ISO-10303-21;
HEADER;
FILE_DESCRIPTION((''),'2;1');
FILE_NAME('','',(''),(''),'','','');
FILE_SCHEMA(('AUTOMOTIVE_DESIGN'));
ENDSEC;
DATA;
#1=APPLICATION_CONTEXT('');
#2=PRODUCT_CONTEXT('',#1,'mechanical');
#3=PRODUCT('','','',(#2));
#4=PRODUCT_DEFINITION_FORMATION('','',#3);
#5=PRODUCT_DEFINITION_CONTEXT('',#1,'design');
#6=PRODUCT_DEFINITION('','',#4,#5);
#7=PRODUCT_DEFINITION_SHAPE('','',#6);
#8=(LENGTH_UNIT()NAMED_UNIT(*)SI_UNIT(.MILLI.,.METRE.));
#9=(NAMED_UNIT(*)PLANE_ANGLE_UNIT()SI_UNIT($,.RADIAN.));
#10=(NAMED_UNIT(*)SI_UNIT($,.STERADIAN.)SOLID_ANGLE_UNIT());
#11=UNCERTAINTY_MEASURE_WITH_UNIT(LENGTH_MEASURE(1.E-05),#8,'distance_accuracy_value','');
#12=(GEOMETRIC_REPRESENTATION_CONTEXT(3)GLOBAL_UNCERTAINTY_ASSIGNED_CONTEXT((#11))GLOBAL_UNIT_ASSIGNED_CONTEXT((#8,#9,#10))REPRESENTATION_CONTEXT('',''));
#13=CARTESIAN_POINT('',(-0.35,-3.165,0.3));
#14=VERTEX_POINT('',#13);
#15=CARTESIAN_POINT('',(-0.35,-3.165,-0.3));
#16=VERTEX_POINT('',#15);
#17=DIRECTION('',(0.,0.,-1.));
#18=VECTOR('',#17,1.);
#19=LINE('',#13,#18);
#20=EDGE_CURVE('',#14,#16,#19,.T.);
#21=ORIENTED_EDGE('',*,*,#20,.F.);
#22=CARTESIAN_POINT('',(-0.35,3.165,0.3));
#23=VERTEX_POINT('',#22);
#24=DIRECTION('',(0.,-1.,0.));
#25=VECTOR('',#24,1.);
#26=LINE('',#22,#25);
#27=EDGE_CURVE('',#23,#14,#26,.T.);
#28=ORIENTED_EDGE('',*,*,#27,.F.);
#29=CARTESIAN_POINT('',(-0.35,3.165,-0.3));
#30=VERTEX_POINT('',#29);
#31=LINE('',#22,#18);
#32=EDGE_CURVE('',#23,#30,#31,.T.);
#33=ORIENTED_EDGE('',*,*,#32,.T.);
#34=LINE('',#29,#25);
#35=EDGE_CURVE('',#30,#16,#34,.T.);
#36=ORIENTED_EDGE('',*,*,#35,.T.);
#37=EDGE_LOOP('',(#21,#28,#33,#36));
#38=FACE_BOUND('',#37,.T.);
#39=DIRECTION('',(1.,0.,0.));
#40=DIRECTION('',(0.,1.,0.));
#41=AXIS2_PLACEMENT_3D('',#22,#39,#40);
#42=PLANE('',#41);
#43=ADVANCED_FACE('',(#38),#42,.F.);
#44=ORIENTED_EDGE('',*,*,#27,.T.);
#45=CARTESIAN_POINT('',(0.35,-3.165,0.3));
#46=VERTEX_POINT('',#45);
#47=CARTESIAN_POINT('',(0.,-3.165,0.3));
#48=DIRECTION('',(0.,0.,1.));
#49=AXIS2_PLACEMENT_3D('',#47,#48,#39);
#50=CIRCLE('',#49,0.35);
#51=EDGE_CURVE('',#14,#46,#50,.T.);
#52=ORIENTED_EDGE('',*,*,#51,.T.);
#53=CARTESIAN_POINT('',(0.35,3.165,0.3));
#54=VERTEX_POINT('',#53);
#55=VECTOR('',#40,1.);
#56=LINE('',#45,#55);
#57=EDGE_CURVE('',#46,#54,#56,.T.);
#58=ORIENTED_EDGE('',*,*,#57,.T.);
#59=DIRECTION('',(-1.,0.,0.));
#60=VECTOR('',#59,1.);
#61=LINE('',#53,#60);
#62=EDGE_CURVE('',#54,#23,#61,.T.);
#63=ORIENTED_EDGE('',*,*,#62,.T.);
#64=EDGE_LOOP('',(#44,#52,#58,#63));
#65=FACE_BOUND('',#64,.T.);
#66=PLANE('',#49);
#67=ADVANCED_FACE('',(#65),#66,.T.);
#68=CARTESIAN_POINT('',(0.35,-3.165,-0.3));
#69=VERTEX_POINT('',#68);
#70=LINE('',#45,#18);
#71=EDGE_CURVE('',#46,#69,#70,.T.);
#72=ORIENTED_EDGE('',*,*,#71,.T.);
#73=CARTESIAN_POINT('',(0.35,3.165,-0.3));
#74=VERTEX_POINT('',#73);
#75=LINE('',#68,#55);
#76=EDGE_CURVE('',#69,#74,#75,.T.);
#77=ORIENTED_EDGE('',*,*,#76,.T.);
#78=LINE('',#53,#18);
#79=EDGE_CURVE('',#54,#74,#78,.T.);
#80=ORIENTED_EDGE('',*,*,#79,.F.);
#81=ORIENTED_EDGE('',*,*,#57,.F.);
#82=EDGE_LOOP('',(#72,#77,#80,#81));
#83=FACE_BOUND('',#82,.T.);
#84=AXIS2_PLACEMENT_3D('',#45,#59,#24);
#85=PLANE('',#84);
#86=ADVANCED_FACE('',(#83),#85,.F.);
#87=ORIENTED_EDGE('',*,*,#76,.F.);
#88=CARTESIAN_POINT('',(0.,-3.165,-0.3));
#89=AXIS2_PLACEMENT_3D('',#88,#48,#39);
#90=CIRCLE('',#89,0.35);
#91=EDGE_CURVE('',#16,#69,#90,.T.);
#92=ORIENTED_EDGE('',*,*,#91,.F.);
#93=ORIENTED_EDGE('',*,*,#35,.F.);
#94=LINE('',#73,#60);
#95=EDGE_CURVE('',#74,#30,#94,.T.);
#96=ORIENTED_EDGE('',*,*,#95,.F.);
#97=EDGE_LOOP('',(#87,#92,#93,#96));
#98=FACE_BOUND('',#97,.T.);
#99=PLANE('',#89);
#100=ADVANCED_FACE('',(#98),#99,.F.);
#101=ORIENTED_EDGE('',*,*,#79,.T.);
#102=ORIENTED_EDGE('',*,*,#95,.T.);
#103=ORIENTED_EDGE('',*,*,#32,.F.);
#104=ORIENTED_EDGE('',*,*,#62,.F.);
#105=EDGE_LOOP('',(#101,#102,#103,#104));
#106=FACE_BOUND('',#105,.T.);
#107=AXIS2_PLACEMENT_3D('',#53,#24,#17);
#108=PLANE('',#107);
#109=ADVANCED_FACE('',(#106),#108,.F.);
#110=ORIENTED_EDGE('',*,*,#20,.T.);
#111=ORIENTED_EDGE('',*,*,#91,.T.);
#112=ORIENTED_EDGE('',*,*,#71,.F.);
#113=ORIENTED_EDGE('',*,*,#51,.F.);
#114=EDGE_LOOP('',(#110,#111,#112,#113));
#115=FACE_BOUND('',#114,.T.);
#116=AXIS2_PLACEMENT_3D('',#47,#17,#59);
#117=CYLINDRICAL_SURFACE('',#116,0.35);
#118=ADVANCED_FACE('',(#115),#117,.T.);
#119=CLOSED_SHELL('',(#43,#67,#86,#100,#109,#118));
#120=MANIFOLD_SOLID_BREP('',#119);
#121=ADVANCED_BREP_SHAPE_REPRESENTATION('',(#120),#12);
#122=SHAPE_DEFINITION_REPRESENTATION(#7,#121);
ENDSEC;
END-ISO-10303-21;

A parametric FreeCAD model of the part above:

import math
import FreeCAD as App
import Part
import Sketcher
from FreeCAD import Vector
Q = App.Units.Quantity

doc = App.newDocument("Part")
params = doc.addObject("Spreadsheet::Sheet", "Params")
for row, (alias, value) in enumerate([
    ("sketch1_radius", "0.35 mm"),
    ("sketch1_height", "6.33 mm"),
    ("pad1_length", "0.6 mm"),
], start=1):
    params.set(f"A{row}", alias)
    params.set(f"B{row}", "=" + value)
    params.setAlias(f"B{row}", alias)

body = doc.addObject("PartDesign::Body", "Body")

sketch1 = body.newObject("Sketcher::SketchObject", "Sketch")
sketch1.AttachmentSupport = (doc.getObject("XY_Plane"), [""])
sketch1.MapMode = "FlatFace"
sketch1.addGeometry(Part.LineSegment(Vector(-0.35, 3.165, 0), Vector(-0.35, -3.165, 0)), False)
sketch1.addGeometry(Part.ArcOfCircle(Part.Circle(Vector(0, -3.165, 0), Vector(0, 0, 1), 0.35), math.radians(180), math.radians(360)), False)
sketch1.addGeometry(Part.LineSegment(Vector(0.35, -3.165, 0), Vector(0.35, 3.165, 0)), False)
sketch1.addGeometry(Part.LineSegment(Vector(0.35, 3.165, 0), Vector(-0.35, 3.165, 0)), False)
sketch1.addConstraint(Sketcher.Constraint("Tangent", 0, 2, 1, 1))
sketch1.addConstraint(Sketcher.Constraint("Tangent", 1, 2, 2, 1))
sketch1.addConstraint(Sketcher.Constraint("Coincident", 2, 2, 3, 1))
sketch1.addConstraint(Sketcher.Constraint("Coincident", 3, 2, 0, 1))
sketch1.addConstraint(Sketcher.Constraint("Vertical", 0))
sketch1.addConstraint(Sketcher.Constraint("Vertical", 2))
sketch1.addConstraint(Sketcher.Constraint("Horizontal", 3))
sketch1.addConstraint(Sketcher.Constraint("Symmetric", 0, 2, 2, 2, -1, 1))
sketch1.addConstraint(Sketcher.Constraint("Radius", 1, Q("0.35 mm")))
sketch1.addConstraint(Sketcher.Constraint("DistanceY", 0, 2, 0, 1, Q("6.33 mm")))
sketch1.setExpression("Constraints[8]", "Params.sketch1_radius")
sketch1.setExpression("Constraints[9]", "Params.sketch1_height")
pad1 = body.newObject("PartDesign::Pad", "Pad")
pad1.Profile = sketch1
pad1.setExpression("Length", "Params.pad1_length")
pad1.Midplane = True

doc.recompute()
